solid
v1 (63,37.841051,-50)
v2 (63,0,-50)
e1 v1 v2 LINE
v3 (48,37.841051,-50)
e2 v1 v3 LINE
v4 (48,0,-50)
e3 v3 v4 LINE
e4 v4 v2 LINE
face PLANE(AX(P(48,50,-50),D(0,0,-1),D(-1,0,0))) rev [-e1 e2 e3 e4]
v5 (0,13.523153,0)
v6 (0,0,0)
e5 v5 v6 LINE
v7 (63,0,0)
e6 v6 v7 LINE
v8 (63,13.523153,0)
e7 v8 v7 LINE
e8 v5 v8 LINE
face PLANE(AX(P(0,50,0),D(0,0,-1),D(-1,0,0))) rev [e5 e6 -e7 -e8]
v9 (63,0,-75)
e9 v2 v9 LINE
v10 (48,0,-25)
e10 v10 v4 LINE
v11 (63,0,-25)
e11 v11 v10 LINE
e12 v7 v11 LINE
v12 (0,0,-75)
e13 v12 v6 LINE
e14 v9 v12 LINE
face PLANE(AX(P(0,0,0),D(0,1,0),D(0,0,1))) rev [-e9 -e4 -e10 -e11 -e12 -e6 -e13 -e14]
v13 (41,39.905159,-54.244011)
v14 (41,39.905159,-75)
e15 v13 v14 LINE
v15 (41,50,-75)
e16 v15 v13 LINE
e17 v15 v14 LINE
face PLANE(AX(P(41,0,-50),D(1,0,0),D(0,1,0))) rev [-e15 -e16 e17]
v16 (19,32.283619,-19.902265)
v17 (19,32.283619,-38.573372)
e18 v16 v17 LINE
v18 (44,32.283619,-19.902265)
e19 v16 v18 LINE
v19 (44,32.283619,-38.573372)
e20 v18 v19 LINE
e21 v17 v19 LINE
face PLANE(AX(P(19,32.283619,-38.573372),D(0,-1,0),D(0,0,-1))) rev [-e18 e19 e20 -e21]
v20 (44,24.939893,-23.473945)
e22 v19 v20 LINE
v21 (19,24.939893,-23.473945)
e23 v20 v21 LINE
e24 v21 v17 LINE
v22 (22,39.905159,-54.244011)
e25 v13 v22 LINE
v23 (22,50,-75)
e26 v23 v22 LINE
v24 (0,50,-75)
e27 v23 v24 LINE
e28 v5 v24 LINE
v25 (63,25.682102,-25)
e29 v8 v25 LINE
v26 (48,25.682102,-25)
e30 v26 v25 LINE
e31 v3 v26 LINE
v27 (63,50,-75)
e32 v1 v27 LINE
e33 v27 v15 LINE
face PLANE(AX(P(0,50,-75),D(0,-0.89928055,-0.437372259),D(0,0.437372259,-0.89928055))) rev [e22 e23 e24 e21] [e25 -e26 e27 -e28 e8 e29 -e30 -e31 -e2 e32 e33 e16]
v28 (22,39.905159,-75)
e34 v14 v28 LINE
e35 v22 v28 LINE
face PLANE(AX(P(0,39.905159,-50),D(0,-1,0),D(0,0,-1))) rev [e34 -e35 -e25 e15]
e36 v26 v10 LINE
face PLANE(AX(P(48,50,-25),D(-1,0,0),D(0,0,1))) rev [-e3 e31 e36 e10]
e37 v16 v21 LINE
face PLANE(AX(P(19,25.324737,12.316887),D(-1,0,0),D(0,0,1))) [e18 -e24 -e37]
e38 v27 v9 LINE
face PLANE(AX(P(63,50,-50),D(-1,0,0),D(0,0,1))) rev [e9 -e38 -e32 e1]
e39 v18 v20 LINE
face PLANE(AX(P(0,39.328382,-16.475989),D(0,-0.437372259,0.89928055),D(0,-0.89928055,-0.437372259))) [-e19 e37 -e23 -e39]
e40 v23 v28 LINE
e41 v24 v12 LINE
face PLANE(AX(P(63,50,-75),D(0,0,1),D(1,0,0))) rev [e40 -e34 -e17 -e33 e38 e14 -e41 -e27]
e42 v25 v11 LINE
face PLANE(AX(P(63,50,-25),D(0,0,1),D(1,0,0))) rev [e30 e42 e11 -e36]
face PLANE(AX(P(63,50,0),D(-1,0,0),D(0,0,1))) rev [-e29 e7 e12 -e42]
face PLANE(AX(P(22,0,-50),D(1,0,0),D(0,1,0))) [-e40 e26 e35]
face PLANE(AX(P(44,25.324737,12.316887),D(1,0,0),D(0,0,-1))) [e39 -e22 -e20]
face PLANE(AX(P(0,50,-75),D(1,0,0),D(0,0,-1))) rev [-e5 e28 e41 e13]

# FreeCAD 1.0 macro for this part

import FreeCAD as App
import Part
import Sketcher

doc = App.newDocument("Part")
body = doc.addObject("PartDesign::Body", "Body")

sketch1 = body.newObject("Sketcher::SketchObject", "Sketch")
sketch1.AttachmentSupport = (doc.getObject("XZ_Plane"), [""])
sketch1.MapMode = "FlatFace"
sketch1.addGeometry([
    Part.LineSegment(App.Vector(0, 0, 0), App.Vector(63, 0, 0)),
    Part.LineSegment(App.Vector(63, 0, 0), App.Vector(63, -25, 0)),
    Part.LineSegment(App.Vector(63, -25, 0), App.Vector(48, -25, 0)),
    Part.LineSegment(App.Vector(48, -25, 0), App.Vector(48, -50, 0)),
    Part.LineSegment(App.Vector(48, -50, 0), App.Vector(63, -50, 0)),
    Part.LineSegment(App.Vector(63, -50, 0), App.Vector(63, -75, 0)),
    Part.LineSegment(App.Vector(63, -75, 0), App.Vector(0, -75, 0)),
    Part.LineSegment(App.Vector(0, -75, 0), App.Vector(0, 0, 0)),
], False)
sketch1.addConstraint([
    Sketcher.Constraint("Coincident", 0, 2, 1, 1),
    Sketcher.Constraint("Coincident", 1, 2, 2, 1),
    Sketcher.Constraint("Coincident", 2, 2, 3, 1),
    Sketcher.Constraint("Coincident", 3, 2, 4, 1),
    Sketcher.Constraint("Coincident", 4, 2, 5, 1),
    Sketcher.Constraint("Coincident", 5, 2, 6, 1),
    Sketcher.Constraint("Coincident", 6, 2, 7, 1),
    Sketcher.Constraint("Coincident", 7, 2, 0, 1),
    Sketcher.Constraint("Horizontal", 0),
    Sketcher.Constraint("Vertical", 1),
    Sketcher.Constraint("Horizontal", 2),
    Sketcher.Constraint("Vertical", 3),
    Sketcher.Constraint("Horizontal", 4),
    Sketcher.Constraint("Vertical", 5),
    Sketcher.Constraint("Horizontal", 6),
    Sketcher.Constraint("Vertical", 7),
    Sketcher.Constraint("Coincident", 7, 2, -1, 1),
    Sketcher.Constraint("Vertical", 1, 2, 4, 2),
    Sketcher.Constraint("Equal", 1, 3),
    Sketcher.Constraint("Equal", 3, 5),
    Sketcher.Constraint("DistanceX", 0, 1, 0, 2, 63.0),
    Sketcher.Constraint("DistanceX", 2, 2, 2, 1, 15.0),
    Sketcher.Constraint("DistanceY", 1, 2, 1, 1, 25.0),
])
pad1 = body.newObject("PartDesign::Pad", "Pad")
pad1.Profile = sketch1
pad1.Length = 50
pad1.Reversed = True

sketch2 = body.newObject("Sketcher::SketchObject", "Sketch001")
sketch2.AttachmentSupport = (doc.getObject("YZ_Plane"), [""])
sketch2.MapMode = "FlatFace"
sketch2.AttachmentOffset = App.Placement(App.Vector(0, 0, 63), App.Rotation())
sketch2.addGeometry([
    Part.LineSegment(App.Vector(13.523153, 0, 0), App.Vector(50, -75, 0)),
    Part.LineSegment(App.Vector(50, -75, 0), App.Vector(50, 0, 0)),
    Part.LineSegment(App.Vector(50, 0, 0), App.Vector(13.523153, 0, 0)),
], False)
sketch2.addConstraint([
    Sketcher.Constraint("Coincident", 0, 2, 1, 1),
    Sketcher.Constraint("Coincident", 1, 2, 2, 1),
    Sketcher.Constraint("Coincident", 2, 2, 0, 1),
    Sketcher.Constraint("Vertical", 1),
    Sketcher.Constraint("Horizontal", 2),
    Sketcher.Constraint("PointOnObject", 1, 2, -1),
    Sketcher.Constraint("DistanceY", 1, 1, 1, 2, 75.0),
    Sketcher.Constraint("DistanceX", -1, 1, 0, 2, 50.0),
    Sketcher.Constraint("DistanceX", 2, 2, 2, 1, 36.476847),
])
pocket1 = body.newObject("PartDesign::Pocket", "Pocket")
pocket1.Profile = sketch2
pocket1.Length = 63

sketch3 = body.newObject("Sketcher::SketchObject", "Sketch002")
sketch3.Placement = App.Placement(App.Vector(0, 10.936248, 5.318931), App.Rotation(App.Vector(1, 0, 0), App.Vector(0, 0.437372259, -0.89928055), App.Vector(0, 0.89928055, 0.437372259), "ZXY"))
sketch3.addGeometry([
    Part.LineSegment(App.Vector(19, 48.808243, 0), App.Vector(19, 32.01768, 0)),
    Part.LineSegment(App.Vector(19, 32.01768, 0), App.Vector(44, 32.01768, 0)),
    Part.LineSegment(App.Vector(44, 32.01768, 0), App.Vector(44, 48.808243, 0)),
    Part.LineSegment(App.Vector(44, 48.808243, 0), App.Vector(19, 48.808243, 0)),
], False)
sketch3.addConstraint([
    Sketcher.Constraint("Coincident", 0, 2, 1, 1),
    Sketcher.Constraint("Coincident", 1, 2, 2, 1),
    Sketcher.Constraint("Coincident", 2, 2, 3, 1),
    Sketcher.Constraint("Coincident", 3, 2, 0, 1),
    Sketcher.Constraint("Vertical", 0),
    Sketcher.Constraint("Horizontal", 1),
    Sketcher.Constraint("Vertical", 2),
    Sketcher.Constraint("Horizontal", 3),
    Sketcher.Constraint("DistanceX", 1, 1, 1, 2, 25.0),
    Sketcher.Constraint("DistanceX", -1, 1, 0, 2, 19.0),
    Sketcher.Constraint("DistanceY", 0, 2, 0, 1, 16.790563),
    Sketcher.Constraint("DistanceY", -1, 1, 0, 2, 32.01768),
])
pad2 = body.newObject("PartDesign::Pad", "Pad001")
pad2.Profile = sketch3
pad2.Length = 16

sketch4 = body.newObject("Sketcher::SketchObject", "Sketch003")
sketch4.AttachmentSupport = (doc.getObject("YZ_Plane"), [""])
sketch4.MapMode = "FlatFace"
sketch4.AttachmentOffset = App.Placement(App.Vector(0, 0, 44), App.Rotation())
sketch4.addGeometry([
    Part.LineSegment(App.Vector(32.283619, -19.902265, 0), App.Vector(32.283619, -38.573372, 0)),
    Part.LineSegment(App.Vector(32.283619, -38.573372, 0), App.Vector(46.672108, -31.575416, 0)),
    Part.LineSegment(App.Vector(46.672108, -31.575416, 0), App.Vector(39.328382, -16.475989, 0)),
    Part.LineSegment(App.Vector(39.328382, -16.475989, 0), App.Vector(32.283619, -19.902265, 0)),
], False)
sketch4.addConstraint([
    Sketcher.Constraint("Coincident", 0, 2, 1, 1),
    Sketcher.Constraint("Coincident", 1, 2, 2, 1),
    Sketcher.Constraint("Coincident", 2, 2, 3, 1),
    Sketcher.Constraint("Coincident", 3, 2, 0, 1),
    Sketcher.Constraint("Vertical", 0),
    Sketcher.Constraint("Perpendicular", 1, 2),
    Sketcher.Constraint("Perpendicular", 2, 3),
    Sketcher.Constraint("Distance", 1, 16.0),
    Sketcher.Constraint("DistanceY", 0, 2, 0, 1, 18.671107),
    Sketcher.Constraint("DistanceX", -1, 1, 0, 2, 32.283619),
    Sketcher.Constraint("DistanceY", 0, 2, -1, 1, 38.573372),
    Sketcher.Constraint("DistanceX", -1, 1, 1, 2, 46.672108),
])
pocket2 = body.newObject("PartDesign::Pocket", "Pocket001")
pocket2.Profile = sketch4
pocket2.Length = 25

sketch5 = body.newObject("Sketcher::SketchObject", "Sketch004")
sketch5.AttachmentSupport = (doc.getObject("XY_Plane"), [""])
sketch5.MapMode = "FlatFace"
sketch5.AttachmentOffset = App.Placement(App.Vector(0, 0, -75), App.Rotation())
sketch5.addGeometry([
    Part.LineSegment(App.Vector(41, 50, 0), App.Vector(41, 39.905159, 0)),
    Part.LineSegment(App.Vector(41, 39.905159, 0), App.Vector(22, 39.905159, 0)),
    Part.LineSegment(App.Vector(22, 39.905159, 0), App.Vector(22, 50, 0)),
    Part.LineSegment(App.Vector(22, 50, 0), App.Vector(41, 50, 0)),
], False)
sketch5.addConstraint([
    Sketcher.Constraint("Coincident", 0, 2, 1, 1),
    Sketcher.Constraint("Coincident", 1, 2, 2, 1),
    Sketcher.Constraint("Coincident", 2, 2, 3, 1),
    Sketcher.Constraint("Coincident", 3, 2, 0, 1),
    Sketcher.Constraint("Vertical", 0),
    Sketcher.Constraint("Horizontal", 1),
    Sketcher.Constraint("Vertical", 2),
    Sketcher.Constraint("Horizontal", 3),
    Sketcher.Constraint("DistanceX", 1, 2, 1, 1, 19.0),
    Sketcher.Constraint("DistanceX", -1, 1, 0, 2, 41.0),
    Sketcher.Constraint("DistanceY", -1, 1, 2, 2, 50.0),
    Sketcher.Constraint("DistanceY", 0, 2, 0, 1, 10.094841),
])
pocket3 = body.newObject("PartDesign::Pocket", "Pocket002")
pocket3.Profile = sketch5
pocket3.Length = 25
pocket3.Reversed = True

doc.recompute()
